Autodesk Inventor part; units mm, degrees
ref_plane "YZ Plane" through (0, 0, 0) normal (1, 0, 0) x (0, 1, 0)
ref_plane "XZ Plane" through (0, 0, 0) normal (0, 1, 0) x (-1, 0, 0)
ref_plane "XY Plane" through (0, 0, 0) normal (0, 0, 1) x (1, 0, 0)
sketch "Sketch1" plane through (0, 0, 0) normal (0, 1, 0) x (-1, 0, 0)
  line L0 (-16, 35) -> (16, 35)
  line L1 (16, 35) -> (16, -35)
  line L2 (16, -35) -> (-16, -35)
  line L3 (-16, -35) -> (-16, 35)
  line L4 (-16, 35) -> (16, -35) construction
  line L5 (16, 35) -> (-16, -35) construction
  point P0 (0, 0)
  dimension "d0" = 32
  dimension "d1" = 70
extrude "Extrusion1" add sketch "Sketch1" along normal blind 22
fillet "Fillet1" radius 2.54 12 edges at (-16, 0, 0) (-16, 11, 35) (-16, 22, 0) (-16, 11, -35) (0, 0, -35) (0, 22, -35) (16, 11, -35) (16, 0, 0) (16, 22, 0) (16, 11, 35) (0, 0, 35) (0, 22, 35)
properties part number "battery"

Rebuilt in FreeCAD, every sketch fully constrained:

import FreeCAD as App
import Part
import Sketcher

V = App.Vector
Q = App.Units.Quantity

doc = App.newDocument("Part")
body = doc.addObject("PartDesign::Body", "Body")

# Sketch on XZ plane
sketch1 = body.newObject("Sketcher::SketchObject", "Sketch")
sketch1.AttachmentSupport = (doc.getObject("XZ_Plane"), [""])
sketch1.MapMode = "FlatFace"
sketch1.addGeometry(Part.LineSegment(V(-16, 35, 0), V(16, 35, 0)), False)
sketch1.addGeometry(Part.LineSegment(V(16, 35, 0), V(16, -35, 0)), False)
sketch1.addGeometry(Part.LineSegment(V(16, -35, 0), V(-16, -35, 0)), False)
sketch1.addGeometry(Part.LineSegment(V(-16, -35, 0), V(-16, 35, 0)), False)
sketch1.addConstraint(Sketcher.Constraint("Coincident", 0, 2, 1, 1))
sketch1.addConstraint(Sketcher.Constraint("Coincident", 1, 2, 2, 1))
sketch1.addConstraint(Sketcher.Constraint("Coincident", 2, 2, 3, 1))
sketch1.addConstraint(Sketcher.Constraint("Coincident", 3, 2, 0, 1))
sketch1.addConstraint(Sketcher.Constraint("Horizontal", 0))
sketch1.addConstraint(Sketcher.Constraint("Vertical", 1))
sketch1.addConstraint(Sketcher.Constraint("Horizontal", 2))
sketch1.addConstraint(Sketcher.Constraint("Vertical", 3))
sketch1.addConstraint(Sketcher.Constraint("Symmetric", 0, 2, 2, 2, -1, 1))
sketch1.addConstraint(Sketcher.Constraint("DistanceX", 0, 1, 0, 2, Q("32 mm")))
sketch1.addConstraint(Sketcher.Constraint("DistanceY", 1, 2, 1, 1, Q("70 mm")))
pad1 = body.newObject("PartDesign::Pad", "Pad")
pad1.Profile = sketch1
pad1.Length = 22
pad1.Reversed = True
doc.recompute()

fillet = body.newObject("PartDesign::Fillet", "Fillet")
fillet.Base = (pad1, ["Edge1"])
fillet.UseAllEdges = True
fillet.Radius = 2.54

doc.recompute()
